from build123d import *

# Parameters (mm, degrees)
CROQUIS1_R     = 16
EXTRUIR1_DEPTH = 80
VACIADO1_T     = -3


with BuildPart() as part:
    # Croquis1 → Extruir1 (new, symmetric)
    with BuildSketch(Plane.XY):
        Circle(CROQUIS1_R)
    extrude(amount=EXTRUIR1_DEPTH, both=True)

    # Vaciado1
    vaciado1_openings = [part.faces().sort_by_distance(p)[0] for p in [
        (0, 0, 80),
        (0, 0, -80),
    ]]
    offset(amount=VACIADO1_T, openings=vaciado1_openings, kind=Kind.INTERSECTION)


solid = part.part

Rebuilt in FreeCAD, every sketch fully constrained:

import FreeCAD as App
import Part
import Sketcher


def faces_at(feature, points):
    """Names of the faces that lie closest to the given points."""
    faces = feature.Shape.Faces
    near = lambda p: min(range(len(faces)), key=lambda i: faces[i].distToShape(Part.Vertex(*p))[0])
    return sorted({f"Face{near(p) + 1}" for p in points})

doc = App.newDocument("Part")
params = doc.addObject("Spreadsheet::Sheet", "Params")
for row, (alias, value) in enumerate([
    ("sketch1_diameter", "32 mm"),
    ("pad1_length", "160 mm"),
    ("thickness_wall", "3 mm"),
], start=1):
    params.set(f"A{row}", alias)
    params.set(f"B{row}", "=" + value)
    params.setAlias(f"B{row}", alias)

body = doc.addObject("PartDesign::Body", "Body")

sketch1 = body.newObject("Sketcher::SketchObject", "Sketch")
sketch1.AttachmentSupport = (doc.getObject("XY_Plane"), [""])
sketch1.MapMode = "FlatFace"
sketch1.addGeometry(Part.Circle(App.Vector(0, 0, 0), App.Vector(0, 0, 1), 16), False)
sketch1.addConstraint([
    Sketcher.Constraint("Coincident", 0, 3, -1, 1),
    Sketcher.Constraint("Diameter", 0, 32.0),
])
sketch1.setExpression("Constraints[1]", "Params.sketch1_diameter")
pad1 = body.newObject("PartDesign::Pad", "Pad")
pad1.Profile = sketch1
pad1.setExpression("Length", "Params.pad1_length")
pad1.Midplane = True
doc.recompute()

thickness = body.newObject("PartDesign::Thickness", "Thickness")
thickness.Base = (pad1, faces_at(pad1, [(0, 0, 80), (0, 0, -80)]))
thickness.setExpression("Value", "Params.thickness_wall")
thickness.Reversed = True
thickness.Join = "Intersection"

doc.recompute()
